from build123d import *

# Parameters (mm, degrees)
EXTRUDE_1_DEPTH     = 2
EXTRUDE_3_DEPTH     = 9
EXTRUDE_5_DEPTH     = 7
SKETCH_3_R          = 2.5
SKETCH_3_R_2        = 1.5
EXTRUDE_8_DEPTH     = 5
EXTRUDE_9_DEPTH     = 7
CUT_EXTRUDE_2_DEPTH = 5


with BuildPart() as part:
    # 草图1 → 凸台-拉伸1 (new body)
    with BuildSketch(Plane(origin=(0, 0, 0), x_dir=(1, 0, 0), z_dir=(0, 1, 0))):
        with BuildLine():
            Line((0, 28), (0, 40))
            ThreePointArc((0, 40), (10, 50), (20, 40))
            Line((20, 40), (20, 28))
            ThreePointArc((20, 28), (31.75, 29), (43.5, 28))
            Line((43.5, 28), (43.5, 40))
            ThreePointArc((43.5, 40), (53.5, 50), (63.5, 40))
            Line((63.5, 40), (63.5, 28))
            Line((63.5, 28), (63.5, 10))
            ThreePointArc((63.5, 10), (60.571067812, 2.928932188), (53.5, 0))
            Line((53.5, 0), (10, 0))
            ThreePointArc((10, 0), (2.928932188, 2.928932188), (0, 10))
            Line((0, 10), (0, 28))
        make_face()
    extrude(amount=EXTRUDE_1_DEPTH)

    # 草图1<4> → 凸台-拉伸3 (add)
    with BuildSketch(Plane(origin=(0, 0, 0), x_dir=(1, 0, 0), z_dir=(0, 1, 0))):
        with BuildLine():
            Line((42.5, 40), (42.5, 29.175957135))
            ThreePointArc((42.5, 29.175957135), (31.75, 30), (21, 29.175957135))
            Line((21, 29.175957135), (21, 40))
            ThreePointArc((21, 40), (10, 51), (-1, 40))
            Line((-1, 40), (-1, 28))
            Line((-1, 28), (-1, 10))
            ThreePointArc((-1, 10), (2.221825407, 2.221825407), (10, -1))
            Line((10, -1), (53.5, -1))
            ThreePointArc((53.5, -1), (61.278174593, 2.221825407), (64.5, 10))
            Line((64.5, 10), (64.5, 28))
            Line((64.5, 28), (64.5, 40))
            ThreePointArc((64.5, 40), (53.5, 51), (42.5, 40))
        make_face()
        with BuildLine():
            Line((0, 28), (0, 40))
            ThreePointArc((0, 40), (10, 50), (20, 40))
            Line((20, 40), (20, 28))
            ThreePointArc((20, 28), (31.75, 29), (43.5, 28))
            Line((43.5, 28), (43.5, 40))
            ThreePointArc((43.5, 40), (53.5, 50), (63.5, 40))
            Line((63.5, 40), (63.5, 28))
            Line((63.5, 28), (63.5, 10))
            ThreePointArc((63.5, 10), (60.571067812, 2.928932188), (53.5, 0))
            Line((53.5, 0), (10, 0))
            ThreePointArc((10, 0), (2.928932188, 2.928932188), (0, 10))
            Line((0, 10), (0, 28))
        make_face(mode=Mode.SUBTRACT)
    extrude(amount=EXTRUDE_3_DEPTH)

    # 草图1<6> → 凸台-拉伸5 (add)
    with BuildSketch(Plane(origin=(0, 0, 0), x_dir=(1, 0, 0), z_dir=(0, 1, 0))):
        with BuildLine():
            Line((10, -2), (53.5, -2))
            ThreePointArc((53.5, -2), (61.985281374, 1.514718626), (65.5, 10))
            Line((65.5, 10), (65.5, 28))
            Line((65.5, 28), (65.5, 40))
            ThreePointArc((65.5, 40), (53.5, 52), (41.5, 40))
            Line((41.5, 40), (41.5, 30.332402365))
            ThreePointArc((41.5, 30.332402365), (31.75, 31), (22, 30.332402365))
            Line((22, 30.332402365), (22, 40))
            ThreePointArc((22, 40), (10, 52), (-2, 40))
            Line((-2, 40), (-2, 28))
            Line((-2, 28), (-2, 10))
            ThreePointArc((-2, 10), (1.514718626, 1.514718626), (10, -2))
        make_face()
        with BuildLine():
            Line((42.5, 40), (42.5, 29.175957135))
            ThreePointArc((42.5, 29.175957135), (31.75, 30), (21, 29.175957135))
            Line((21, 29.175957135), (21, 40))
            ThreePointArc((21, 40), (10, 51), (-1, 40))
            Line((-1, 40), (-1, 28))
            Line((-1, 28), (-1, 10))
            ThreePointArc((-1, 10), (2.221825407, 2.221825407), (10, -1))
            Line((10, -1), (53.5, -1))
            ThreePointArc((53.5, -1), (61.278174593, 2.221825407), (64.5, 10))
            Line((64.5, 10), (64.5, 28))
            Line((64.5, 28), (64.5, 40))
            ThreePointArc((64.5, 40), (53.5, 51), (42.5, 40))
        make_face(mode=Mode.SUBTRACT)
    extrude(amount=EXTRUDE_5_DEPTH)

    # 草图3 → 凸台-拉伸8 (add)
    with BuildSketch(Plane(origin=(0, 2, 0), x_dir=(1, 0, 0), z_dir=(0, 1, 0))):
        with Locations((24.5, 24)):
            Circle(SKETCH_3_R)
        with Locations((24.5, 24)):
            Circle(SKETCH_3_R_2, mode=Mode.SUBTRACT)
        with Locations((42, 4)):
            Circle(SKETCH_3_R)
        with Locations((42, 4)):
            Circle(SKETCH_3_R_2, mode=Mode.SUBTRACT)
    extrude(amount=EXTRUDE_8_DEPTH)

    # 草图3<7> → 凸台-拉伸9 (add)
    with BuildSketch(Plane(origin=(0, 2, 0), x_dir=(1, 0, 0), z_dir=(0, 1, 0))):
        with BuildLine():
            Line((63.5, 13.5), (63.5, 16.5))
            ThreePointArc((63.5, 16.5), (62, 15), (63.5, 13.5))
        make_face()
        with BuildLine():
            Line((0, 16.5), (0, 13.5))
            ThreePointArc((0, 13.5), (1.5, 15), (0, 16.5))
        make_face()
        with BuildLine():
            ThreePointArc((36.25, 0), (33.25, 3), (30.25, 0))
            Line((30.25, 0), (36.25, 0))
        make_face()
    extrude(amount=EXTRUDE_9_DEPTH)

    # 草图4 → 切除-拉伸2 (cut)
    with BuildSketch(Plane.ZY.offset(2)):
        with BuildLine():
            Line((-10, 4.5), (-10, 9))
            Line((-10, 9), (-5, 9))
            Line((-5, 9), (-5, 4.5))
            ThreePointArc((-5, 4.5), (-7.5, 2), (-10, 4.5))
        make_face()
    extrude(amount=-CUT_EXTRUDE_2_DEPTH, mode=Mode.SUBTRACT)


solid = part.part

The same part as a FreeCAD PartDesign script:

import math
import FreeCAD as App
import Part
import Sketcher
from FreeCAD import Vector

doc = App.newDocument("Part")
body = doc.addObject("PartDesign::Body", "Body")

sketch1 = body.newObject("Sketcher::SketchObject", "Sketch")
sketch1.AttachmentSupport = (doc.getObject("XZ_Plane"), [""])
sketch1.MapMode = "FlatFace"
sketch1.addGeometry([
    Part.ArcOfCircle(Part.Circle(Vector(10, -40, 0), Vector(0, 0, 1), 10), math.radians(180), math.radians(360)),
    Part.LineSegment(Vector(0, -40, 0), Vector(0, -10, 0)),
    Part.ArcOfCircle(Part.Circle(Vector(10, -10, 0), Vector(0, 0, 1), 10), math.radians(90), math.radians(180)),
    Part.LineSegment(Vector(10, 0, 0), Vector(53.5, 0, 0)),
    Part.ArcOfCircle(Part.Circle(Vector(53.5, -10, 0), Vector(0, 0, 1), 10), math.radians(0), math.radians(90)),
    Part.LineSegment(Vector(63.5, -10, 0), Vector(63.5, -40, 0)),
    Part.ArcOfCircle(Part.Circle(Vector(53.5, -40, 0), Vector(0, 0, 1), 10), math.radians(180), math.radians(360)),
    Part.LineSegment(Vector(43.5, -40, 0), Vector(43.5, -28, 0)),
    Part.ArcOfCircle(Part.Circle(Vector(31.75, 40.53125, 0), Vector(0, 0, 1), 69.53125), math.radians(-99.729029), math.radians(-80.270971)),
    Part.LineSegment(Vector(20, -28, 0), Vector(20, -40, 0)),
], False)
sketch1.addConstraint([
    Sketcher.Constraint("Tangent", 0, 1, 1, 1),
    Sketcher.Constraint("Tangent", 1, 2, 2, 2),
    Sketcher.Constraint("Tangent", 2, 1, 3, 1),
    Sketcher.Constraint("Tangent", 3, 2, 4, 2),
    Sketcher.Constraint("Tangent", 4, 1, 5, 1),
    Sketcher.Constraint("Tangent", 5, 2, 6, 2),
    Sketcher.Constraint("Tangent", 6, 1, 7, 1),
    Sketcher.Constraint("Coincident", 7, 2, 8, 2),
    Sketcher.Constraint("Coincident", 8, 1, 9, 1),
    Sketcher.Constraint("Tangent", 9, 2, 0, 2),
    Sketcher.Constraint("Vertical", 1),
    Sketcher.Constraint("Horizontal", 3),
    Sketcher.Constraint("Vertical", 5),
    Sketcher.Constraint("Vertical", 7),
    Sketcher.Constraint("Vertical", 9),
    Sketcher.Constraint("Equal", 0, 2),
    Sketcher.Constraint("Equal", 2, 4),
    Sketcher.Constraint("Equal", 4, 6),
    Sketcher.Constraint("PointOnObject", 0, 1, -2),
    Sketcher.Constraint("PointOnObject", 2, 1, -1),
    Sketcher.Constraint("Horizontal", 0, 3, 6, 3),
    Sketcher.Constraint("Horizontal", 7, 2, 8, 1),
    Sketcher.Constraint("Radius", 0, 10.0),
    Sketcher.Constraint("DistanceY", 1, 1, 1, 2, 30.0),
    Sketcher.Constraint("DistanceY", 7, 1, 7, 2, 12.0),
    Sketcher.Constraint("DistanceX", 3, 1, 3, 2, 43.5),
    Sketcher.Constraint("Radius", 8, 69.53125),
])
pad1 = body.newObject("PartDesign::Pad", "Pad")
pad1.Profile = sketch1
pad1.Length = 2
pad1.Reversed = True

sketch2 = body.newObject("Sketcher::SketchObject", "Sketch001")
sketch2.AttachmentSupport = (doc.getObject("XZ_Plane"), [""])
sketch2.MapMode = "FlatFace"
sketch2.addGeometry([
    Part.LineSegment(Vector(42.5, -40, 0), Vector(42.5, -29.175957, 0)),
    Part.ArcOfCircle(Part.Circle(Vector(31.75, 40.53125, 0), Vector(0, 0, 1), 70.53125), math.radians(-98.766889), math.radians(-81.233111)),
    Part.LineSegment(Vector(21, -29.175957, 0), Vector(21, -40, 0)),
    Part.ArcOfCircle(Part.Circle(Vector(10, -40, 0), Vector(0, 0, 1), 11), math.radians(180), math.radians(360)),
    Part.LineSegment(Vector(-1, -40, 0), Vector(-1, -10, 0)),
    Part.ArcOfCircle(Part.Circle(Vector(10, -10, 0), Vector(0, 0, 1), 11), math.radians(90), math.radians(180)),
    Part.LineSegment(Vector(10, 1, 0), Vector(53.5, 1, 0)),
    Part.ArcOfCircle(Part.Circle(Vector(53.5, -10, 0), Vector(0, 0, 1), 11), math.radians(0), math.radians(90)),
    Part.LineSegment(Vector(64.5, -10, 0), Vector(64.5, -40, 0)),
    Part.ArcOfCircle(Part.Circle(Vector(53.5, -40, 0), Vector(0, 0, 1), 11), math.radians(180), math.radians(360)),
    Part.LineSegment(Vector(0, -10, 0), Vector(0, -40, 0)),
    Part.ArcOfCircle(Part.Circle(Vector(10, -40, 0), Vector(0, 0, 1), 10), math.radians(180), math.radians(360)),
    Part.LineSegment(Vector(20, -40, 0), Vector(20, -28, 0)),
    Part.ArcOfCircle(Part.Circle(Vector(31.75, 40.53125, 0), Vector(0, 0, 1), 69.53125), math.radians(-99.729029), math.radians(-80.270971)),
    Part.LineSegment(Vector(43.5, -28, 0), Vector(43.5, -40, 0)),
    Part.ArcOfCircle(Part.Circle(Vector(53.5, -40, 0), Vector(0, 0, 1), 10), math.radians(180), math.radians(360)),
    Part.LineSegment(Vector(63.5, -40, 0), Vector(63.5, -10, 0)),
    Part.ArcOfCircle(Part.Circle(Vector(53.5, -10, 0), Vector(0, 0, 1), 10), math.radians(0), math.radians(90)),
    Part.LineSegment(Vector(53.5, 0, 0), Vector(10, 0, 0)),
    Part.ArcOfCircle(Part.Circle(Vector(10, -10, 0), Vector(0, 0, 1), 10), math.radians(90), math.radians(180)),
], False)
sketch2.addConstraint([
    Sketcher.Constraint("Coincident", 0, 2, 1, 2),
    Sketcher.Constraint("Coincident", 1, 1, 2, 1),
    Sketcher.Constraint("Tangent", 2, 2, 3, 2),
    Sketcher.Constraint("Tangent", 3, 1, 4, 1),
    Sketcher.Constraint("Tangent", 4, 2, 5, 2),
    Sketcher.Constraint("Tangent", 5, 1, 6, 1),
    Sketcher.Constraint("Tangent", 6, 2, 7, 2),
    Sketcher.Constraint("Tangent", 7, 1, 8, 1),
    Sketcher.Constraint("Tangent", 8, 2, 9, 2),
    Sketcher.Constraint("Tangent", 9, 1, 0, 1),
    Sketcher.Constraint("Tangent", 10, 2, 11, 1),
    Sketcher.Constraint("Tangent", 11, 2, 12, 1),
    Sketcher.Constraint("Coincident", 12, 2, 13, 1),
    Sketcher.Constraint("Coincident", 13, 2, 14, 1),
    Sketcher.Constraint("Tangent", 14, 2, 15, 1),
    Sketcher.Constraint("Tangent", 15, 2, 16, 1),
    Sketcher.Constraint("Tangent", 16, 2, 17, 1),
    Sketcher.Constraint("Tangent", 17, 2, 18, 1),
    Sketcher.Constraint("Tangent", 18, 2, 19, 1),
    Sketcher.Constraint("Tangent", 19, 2, 10, 1),
    Sketcher.Constraint("Vertical", 0),
    Sketcher.Constraint("Vertical", 2),
    Sketcher.Constraint("Vertical", 4),
    Sketcher.Constraint("Horizontal", 6),
    Sketcher.Constraint("Vertical", 8),
    Sketcher.Constraint("Vertical", 10),
    Sketcher.Constraint("Vertical", 12),
    Sketcher.Constraint("Vertical", 14),
    Sketcher.Constraint("Vertical", 16),
    Sketcher.Constraint("Horizontal", 18),
    Sketcher.Constraint("Coincident", 11, 3, 3, 3),
    Sketcher.Constraint("Coincident", 13, 3, 1, 3),
    Sketcher.Constraint("Coincident", 15, 3, 9, 3),
    Sketcher.Constraint("Coincident", 17, 3, 7, 3),
    Sketcher.Constraint("Coincident", 19, 3, 5, 3),
    Sketcher.Constraint("Equal", 3, 5),
    Sketcher.Constraint("Equal", 5, 7),
    Sketcher.Constraint("Equal", 7, 9),
    Sketcher.Constraint("PointOnObject", 10, 2, -2),
    Sketcher.Constraint("PointOnObject", 17, 2, -1),
    Sketcher.Constraint("Horizontal", 3, 3, 9, 3),
    Sketcher.Constraint("Horizontal", 0, 2, 1, 1),
    Sketcher.Constraint("Radius", 3, 11.0),
    Sketcher.Constraint("Radius", 11, 10.0),
    Sketcher.Constraint("DistanceY", 4, 1, 4, 2, 30.0),
    Sketcher.Constraint("DistanceY", 12, 1, 12, 2, 12.0),
    Sketcher.Constraint("DistanceX", 6, 1, 6, 2, 43.5),
    Sketcher.Constraint("Radius", 1, 70.53125),
    Sketcher.Constraint("Radius", 13, 69.53125),
])
pad2 = body.newObject("PartDesign::Pad", "Pad001")
pad2.Profile = sketch2
pad2.Length = 9
pad2.Reversed = True

sketch3 = body.newObject("Sketcher::SketchObject", "Sketch002")
sketch3.AttachmentSupport = (doc.getObject("XZ_Plane"), [""])
sketch3.MapMode = "FlatFace"
sketch3.addGeometry([
    Part.LineSegment(Vector(10, 2, 0), Vector(53.5, 2, 0)),
    Part.ArcOfCircle(Part.Circle(Vector(53.5, -10, 0), Vector(0, 0, 1), 12), math.radians(0), math.radians(90)),
    Part.LineSegment(Vector(65.5, -10, 0), Vector(65.5, -40, 0)),
    Part.ArcOfCircle(Part.Circle(Vector(53.5, -40, 0), Vector(0, 0, 1), 12), math.radians(180), math.radians(360)),
    Part.LineSegment(Vector(41.5, -40, 0), Vector(41.5, -30.332402, 0)),
    Part.ArcOfCircle(Part.Circle(Vector(31.75, 40.53125, 0), Vector(0, 0, 1), 71.53125), math.radians(-97.834034), math.radians(-82.165966)),
    Part.LineSegment(Vector(22, -30.332402, 0), Vector(22, -40, 0)),
    Part.ArcOfCircle(Part.Circle(Vector(10, -40, 0), Vector(0, 0, 1), 12), math.radians(180), math.radians(360)),
    Part.LineSegment(Vector(-2, -40, 0), Vector(-2, -10, 0)),
    Part.ArcOfCircle(Part.Circle(Vector(10, -10, 0), Vector(0, 0, 1), 12), math.radians(90), math.radians(180)),
    Part.LineSegment(Vector(42.5, -29.175957, 0), Vector(42.5, -40, 0)),
    Part.ArcOfCircle(Part.Circle(Vector(53.5, -40, 0), Vector(0, 0, 1), 11), math.radians(180), math.radians(360)),
    Part.LineSegment(Vector(64.5, -40, 0), Vector(64.5, -10, 0)),
    Part.ArcOfCircle(Part.Circle(Vector(53.5, -10, 0), Vector(0, 0, 1), 11), math.radians(0), math.radians(90)),
    Part.LineSegment(Vector(53.5, 1, 0), Vector(10, 1, 0)),
    Part.ArcOfCircle(Part.Circle(Vector(10, -10, 0), Vector(0, 0, 1), 11), math.radians(90), math.radians(180)),
    Part.LineSegment(Vector(-1, -10, 0), Vector(-1, -40, 0)),
    Part.ArcOfCircle(Part.Circle(Vector(10, -40, 0), Vector(0, 0, 1), 11), math.radians(180), math.radians(360)),
    Part.LineSegment(Vector(21, -40, 0), Vector(21, -29.175957, 0)),
    Part.ArcOfCircle(Part.Circle(Vector(31.75, 40.53125, 0), Vector(0, 0, 1), 70.53125), math.radians(-98.766889), math.radians(-81.233111)),
], False)
sketch3.addConstraint([
    Sketcher.Constraint("Tangent", 0, 2, 1, 2),
    Sketcher.Constraint("Tangent", 1, 1, 2, 1),
    Sketcher.Constraint("Tangent", 2, 2, 3, 2),
    Sketcher.Constraint("Tangent", 3, 1, 4, 1),
    Sketcher.Constraint("Coincident", 4, 2, 5, 2),
    Sketcher.Constraint("Coincident", 5, 1, 6, 1),
    Sketcher.Constraint("Tangent", 6, 2, 7, 2),
    Sketcher.Constraint("Tangent", 7, 1, 8, 1),
    Sketcher.Constraint("Tangent", 8, 2, 9, 2),
    Sketcher.Constraint("Tangent", 9, 1, 0, 1),
    Sketcher.Constraint("Tangent", 10, 2, 11, 1),
    Sketcher.Constraint("Tangent", 11, 2, 12, 1),
    Sketcher.Constraint("Tangent", 12, 2, 13, 1),
    Sketcher.Constraint("Tangent", 13, 2, 14, 1),
    Sketcher.Constraint("Tangent", 14, 2, 15, 1),
    Sketcher.Constraint("Tangent", 15, 2, 16, 1),
    Sketcher.Constraint("Tangent", 16, 2, 17, 1),
    Sketcher.Constraint("Tangent", 17, 2, 18, 1),
    Sketcher.Constraint("Coincident", 18, 2, 19, 1),
    Sketcher.Constraint("Coincident", 19, 2, 10, 1),
    Sketcher.Constraint("Horizontal", 0),
    Sketcher.Constraint("Vertical", 2),
    Sketcher.Constraint("Vertical", 4),
    Sketcher.Constraint("Vertical", 6),
    Sketcher.Constraint("Vertical", 8),
    Sketcher.Constraint("Vertical", 10),
    Sketcher.Constraint("Vertical", 12),
    Sketcher.Constraint("Horizontal", 14),
    Sketcher.Constraint("Vertical", 16),
    Sketcher.Constraint("Vertical", 18),
    Sketcher.Constraint("Coincident", 11, 3, 3, 3),
    Sketcher.Constraint("Coincident", 13, 3, 1, 3),
    Sketcher.Constraint("Coincident", 15, 3, 9, 3),
    Sketcher.Constraint("Coincident", 17, 3, 7, 3),
    Sketcher.Constraint("Coincident", 19, 3, 5, 3),
    Sketcher.Constraint("Equal", 1, 3),
    Sketcher.Constraint("Equal", 3, 7),
    Sketcher.Constraint("Equal", 7, 9),
    Sketcher.Constraint("Horizontal", 3, 3, 7, 3),
    Sketcher.Constraint("Horizontal", 4, 2, 5, 1),
    Sketcher.Constraint("Radius", 1, 12.0),
    Sketcher.Constraint("Radius", 11, 11.0),
    Sketcher.Constraint("DistanceY", 2, 2, 2, 1, 30.0),
    Sketcher.Constraint("DistanceX", 0, 1, 0, 2, 43.5),
    Sketcher.Constraint("DistanceY", 1, 3, -1, 1, 10.0),
    Sketcher.Constraint("DistanceX", -1, 1, 7, 3, 10.0),
    Sketcher.Constraint("Radius", 5, 71.53125),
    Sketcher.Constraint("Radius", 19, 70.53125),
    Sketcher.Constraint("DistanceY", 4, 1, 4, 2, 9.667598),
])
pad3 = body.newObject("PartDesign::Pad", "Pad002")
pad3.Profile = sketch3
pad3.Length = 7
pad3.Reversed = True

sketch4 = body.newObject("Sketcher::SketchObject", "Sketch003")
sketch4.AttachmentSupport = (doc.getObject("XZ_Plane"), [""])
sketch4.MapMode = "FlatFace"
sketch4.AttachmentOffset = App.Placement(Vector(0, 0, -2), App.Rotation())
sketch4.addGeometry([
    Part.Circle(Vector(24.5, -24, 0), Vector(0, 0, 1), 2.5),
    Part.Circle(Vector(24.5, -24, 0), Vector(0, 0, 1), 1.5),
    Part.Circle(Vector(42, -4, 0), Vector(0, 0, 1), 2.5),
    Part.Circle(Vector(42, -4, 0), Vector(0, 0, 1), 1.5),
], False)
sketch4.addConstraint([
    Sketcher.Constraint("Coincident", 1, 3, 0, 3),
    Sketcher.Constraint("Coincident", 3, 3, 2, 3),
    Sketcher.Constraint("Equal", 0, 2),
    Sketcher.Constraint("Equal", 1, 3),
    Sketcher.Constraint("Diameter", 0, 5.0),
    Sketcher.Constraint("Diameter", 1, 3.0),
    Sketcher.Constraint("DistanceY", 0, 3, -1, 1, 24.0),
    Sketcher.Constraint("DistanceX", -1, 1, 2, 3, 42.0),
    Sketcher.Constraint("DistanceY", 2, 3, -1, 1, 4.0),
    Sketcher.Constraint("DistanceX", -1, 1, 0, 3, 24.5),
])
pad4 = body.newObject("PartDesign::Pad", "Pad003")
pad4.Profile = sketch4
pad4.Length = 5
pad4.Reversed = True

sketch5 = body.newObject("Sketcher::SketchObject", "Sketch004")
sketch5.AttachmentSupport = (doc.getObject("XZ_Plane"), [""])
sketch5.MapMode = "FlatFace"
sketch5.AttachmentOffset = App.Placement(Vector(0, 0, -2), App.Rotation())
sketch5.addGeometry([
    Part.LineSegment(Vector(63.5, -13.5, 0), Vector(63.5, -16.5, 0)),
    Part.ArcOfCircle(Part.Circle(Vector(63.5, -15, 0), Vector(0, 0, 1), 1.5), math.radians(90), math.radians(270)),
    Part.LineSegment(Vector(0, -16.5, 0), Vector(0, -13.5, 0)),
    Part.ArcOfCircle(Part.Circle(Vector(0, -15, 0), Vector(0, 0, 1), 1.5), math.radians(-90), math.radians(90)),
    Part.ArcOfCircle(Part.Circle(Vector(33.25, 0, 0), Vector(0, 0, 1), 3), math.radians(180), math.radians(360)),
    Part.LineSegment(Vector(30.25, 0, 0), Vector(36.25, 0, 0)),
], False)
sketch5.addConstraint([
    Sketcher.Constraint("Coincident", 0, 1, 1, 1),
    Sketcher.Constraint("Coincident", 1, 2, 0, 2),
    Sketcher.Constraint("Coincident", 2, 1, 3, 1),
    Sketcher.Constraint("Coincident", 3, 2, 2, 2),
    Sketcher.Constraint("Coincident", 4, 1, 5, 1),
    Sketcher.Constraint("Coincident", 5, 2, 4, 2),
    Sketcher.Constraint("Vertical", 0),
    Sketcher.Constraint("Vertical", 2),
    Sketcher.Constraint("Horizontal", 5),
    Sketcher.Constraint("Equal", 1, 3),
    Sketcher.Constraint("PointOnObject", 3, 3, -2),
    Sketcher.Constraint("PointOnObject", 4, 3, -1),
    Sketcher.Constraint("PointOnObject", 2, 1, -2),
    Sketcher.Constraint("PointOnObject", 4, 1, -1),
    Sketcher.Constraint("Horizontal", 1, 3, 3, 3),
    Sketcher.Constraint("Vertical", 1, 3, 0, 1),
    Sketcher.Constraint("Radius", 4, 3.0),
    Sketcher.Constraint("Radius", 1, 1.5),
    Sketcher.Constraint("DistanceY", 1, 3, -1, 1, 15.0),
    Sketcher.Constraint("DistanceX", -1, 1, 1, 3, 63.5),
    Sketcher.Constraint("DistanceX", -1, 1, 4, 3, 33.25),
])
pad5 = body.newObject("PartDesign::Pad", "Pad004")
pad5.Profile = sketch5
pad5.Length = 7
pad5.Reversed = True

sketch6 = body.newObject("Sketcher::SketchObject", "Sketch005")
sketch6.AttachmentSupport = (doc.getObject("YZ_Plane"), [""])
sketch6.MapMode = "FlatFace"
sketch6.AttachmentOffset = App.Placement(Vector(0, 0, -2), App.Rotation())
sketch6.addGeometry([
    Part.LineSegment(Vector(9, -10, 0), Vector(4.5, -10, 0)),
    Part.ArcOfCircle(Part.Circle(Vector(4.5, -7.5, 0), Vector(0, 0, 1), 2.5), math.radians(90), math.radians(270)),
    Part.LineSegment(Vector(4.5, -5, 0), Vector(9, -5, 0)),
    Part.LineSegment(Vector(9, -5, 0), Vector(9, -10, 0)),
], False)
sketch6.addConstraint([
    Sketcher.Constraint("Tangent", 0, 2, 1, 2),
    Sketcher.Constraint("Tangent", 1, 1, 2, 1),
    Sketcher.Constraint("Coincident", 2, 2, 3, 1),
    Sketcher.Constraint("Coincident", 3, 2, 0, 1),
    Sketcher.Constraint("Horizontal", 0),
    Sketcher.Constraint("Horizontal", 2),
    Sketcher.Constraint("Vertical", 3),
    Sketcher.Constraint("Radius", 1, 2.5),
    Sketcher.Constraint("DistanceX", 0, 2, 0, 1, 4.5),
    Sketcher.Constraint("DistanceY", 0, 2, -1, 1, 10.0),
    Sketcher.Constraint("DistanceX", -1, 1, 2, 2, 9.0),
])
pocket1 = body.newObject("PartDesign::Pocket", "Pocket")
pocket1.Profile = sketch6
pocket1.Length = 5
pocket1.Reversed = True

doc.recompute()
